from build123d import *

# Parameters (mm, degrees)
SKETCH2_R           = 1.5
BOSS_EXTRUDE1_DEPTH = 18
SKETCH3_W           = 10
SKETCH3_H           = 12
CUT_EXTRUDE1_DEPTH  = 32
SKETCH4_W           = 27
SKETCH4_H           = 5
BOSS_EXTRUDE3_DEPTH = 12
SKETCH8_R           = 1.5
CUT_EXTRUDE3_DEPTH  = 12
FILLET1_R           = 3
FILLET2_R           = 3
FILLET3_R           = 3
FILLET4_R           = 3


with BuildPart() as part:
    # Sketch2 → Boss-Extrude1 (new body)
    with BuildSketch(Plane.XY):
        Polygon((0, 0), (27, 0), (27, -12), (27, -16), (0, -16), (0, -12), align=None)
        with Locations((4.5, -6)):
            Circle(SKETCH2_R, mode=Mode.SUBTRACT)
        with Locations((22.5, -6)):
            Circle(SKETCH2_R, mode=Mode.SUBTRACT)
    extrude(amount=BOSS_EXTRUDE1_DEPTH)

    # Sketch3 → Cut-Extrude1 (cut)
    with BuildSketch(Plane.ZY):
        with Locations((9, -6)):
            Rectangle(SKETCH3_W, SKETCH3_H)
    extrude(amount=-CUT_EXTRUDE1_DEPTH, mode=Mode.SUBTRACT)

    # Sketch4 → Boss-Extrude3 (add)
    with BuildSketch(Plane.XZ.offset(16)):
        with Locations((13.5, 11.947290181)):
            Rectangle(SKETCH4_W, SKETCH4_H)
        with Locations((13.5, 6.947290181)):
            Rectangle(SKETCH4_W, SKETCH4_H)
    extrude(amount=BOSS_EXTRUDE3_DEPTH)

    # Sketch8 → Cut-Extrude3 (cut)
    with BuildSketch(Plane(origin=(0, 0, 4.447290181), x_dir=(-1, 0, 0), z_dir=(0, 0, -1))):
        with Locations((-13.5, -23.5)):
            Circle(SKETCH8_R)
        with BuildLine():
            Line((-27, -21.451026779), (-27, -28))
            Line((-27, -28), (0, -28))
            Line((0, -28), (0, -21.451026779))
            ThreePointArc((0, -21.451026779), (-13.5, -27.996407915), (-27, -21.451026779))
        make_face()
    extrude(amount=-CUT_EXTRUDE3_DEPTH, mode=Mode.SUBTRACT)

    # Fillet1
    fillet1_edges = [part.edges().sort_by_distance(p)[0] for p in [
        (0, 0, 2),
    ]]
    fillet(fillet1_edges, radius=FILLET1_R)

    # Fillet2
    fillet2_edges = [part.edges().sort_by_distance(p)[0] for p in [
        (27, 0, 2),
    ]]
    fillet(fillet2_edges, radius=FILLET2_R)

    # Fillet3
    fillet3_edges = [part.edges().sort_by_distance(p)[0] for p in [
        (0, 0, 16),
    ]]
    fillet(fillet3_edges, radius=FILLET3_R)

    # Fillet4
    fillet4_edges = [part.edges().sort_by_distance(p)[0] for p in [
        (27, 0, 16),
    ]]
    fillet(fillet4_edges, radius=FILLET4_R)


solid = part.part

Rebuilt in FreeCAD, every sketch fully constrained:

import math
import FreeCAD as App
import Part
import Sketcher
Q = App.Units.Quantity


def edges_at(feature, points):
    """Names of the edges that pass closest to the given points."""
    edges = feature.Shape.Edges
    near = lambda p: min(range(len(edges)), key=lambda i: edges[i].distToShape(Part.Vertex(*p))[0])
    return sorted({f"Edge{near(p) + 1}" for p in points})

doc = App.newDocument("Part")
params = doc.addObject("Spreadsheet::Sheet", "Params")
for row, (alias, value) in enumerate([
    ("sketch1_diameter", "3 mm"),
    ("sketch1_width", "27 mm"),
    ("sketch1_height", "16 mm"),
    ("pad1_length", "18 mm"),
    ("sketch2_width", "12 mm"),
    ("sketch2_height", "10 mm"),
    ("pocket1_length", "32 mm"),
    ("sketch3_width", "27 mm"),
    ("sketch3_height", "10 mm"),
    ("pad2_length", "12 mm"),
    ("sketch4_diameter", "3 mm"),
    ("sketch4_width", "27 mm"),
    ("pocket2_length", "12 mm"),
    ("fillet_radius", "3 mm"),
    ("fillet2_radius", "3 mm"),
    ("fillet3_radius", "3 mm"),
    ("fillet4_radius", "3 mm"),
], start=1):
    params.set(f"A{row}", alias)
    params.set(f"B{row}", "=" + value)
    params.setAlias(f"B{row}", alias)

body = doc.addObject("PartDesign::Body", "Body")

sketch1 = body.newObject("Sketcher::SketchObject", "Sketch")
sketch1.AttachmentSupport = (doc.getObject("XY_Plane"), [""])
sketch1.MapMode = "FlatFace"
sketch1.addGeometry([
    Part.LineSegment(App.Vector(27, 0, 0), App.Vector(0, 0, 0)),
    Part.LineSegment(App.Vector(0, 0, 0), App.Vector(0, -16, 0)),
    Part.LineSegment(App.Vector(0, -16, 0), App.Vector(27, -16, 0)),
    Part.LineSegment(App.Vector(27, -16, 0), App.Vector(27, 0, 0)),
    Part.Circle(App.Vector(22.5, -6, 0), App.Vector(0, 0, 1), 1.5),
    Part.Circle(App.Vector(4.5, -6, 0), App.Vector(0, 0, 1), 1.5),
], False)
sketch1.addConstraint([
    Sketcher.Constraint("Coincident", 0, 2, 1, 1),
    Sketcher.Constraint("Coincident", 1, 2, 2, 1),
    Sketcher.Constraint("Coincident", 2, 2, 3, 1),
    Sketcher.Constraint("Coincident", 3, 2, 0, 1),
    Sketcher.Constraint("Horizontal", 0),
    Sketcher.Constraint("Vertical", 1),
    Sketcher.Constraint("Horizontal", 2),
    Sketcher.Constraint("Vertical", 3),
    Sketcher.Constraint("Coincident", 0, 2, -1, 1),
    Sketcher.Constraint("Equal", 4, 5),
    Sketcher.Constraint("Horizontal", 4, 3, 5, 3),
    Sketcher.Constraint("Diameter", 4, Q("3 mm")),
    Sketcher.Constraint("DistanceX", 0, 2, 0, 1, Q("27 mm")),
    Sketcher.Constraint("DistanceY", 1, 2, 1, 1, Q("16 mm")),
    Sketcher.Constraint("DistanceY", 4, 3, -1, 1, Q("6 mm")),
    Sketcher.Constraint("DistanceX", 5, 3, 4, 3, Q("18 mm")),
    Sketcher.Constraint("DistanceX", -1, 1, 4, 3, Q("22.5 mm")),
])
sketch1.setExpression("Constraints[11]", "Params.sketch1_diameter")
sketch1.setExpression("Constraints[12]", "Params.sketch1_width")
sketch1.setExpression("Constraints[13]", "Params.sketch1_height")
pad1 = body.newObject("PartDesign::Pad", "Pad")
pad1.Profile = sketch1
pad1.setExpression("Length", "Params.pad1_length")

sketch2 = body.newObject("Sketcher::SketchObject", "Sketch001")
sketch2.AttachmentSupport = (doc.getObject("YZ_Plane"), [""])
sketch2.MapMode = "FlatFace"
sketch2.addGeometry([
    Part.LineSegment(App.Vector(0, 4, 0), App.Vector(-12, 4, 0)),
    Part.LineSegment(App.Vector(-12, 4, 0), App.Vector(-12, 14, 0)),
    Part.LineSegment(App.Vector(-12, 14, 0), App.Vector(0, 14, 0)),
    Part.LineSegment(App.Vector(0, 14, 0), App.Vector(0, 4, 0)),
], False)
sketch2.addConstraint([
    Sketcher.Constraint("Coincident", 0, 2, 1, 1),
    Sketcher.Constraint("Coincident", 1, 2, 2, 1),
    Sketcher.Constraint("Coincident", 2, 2, 3, 1),
    Sketcher.Constraint("Coincident", 3, 2, 0, 1),
    Sketcher.Constraint("Horizontal", 0),
    Sketcher.Constraint("Vertical", 1),
    Sketcher.Constraint("Horizontal", 2),
    Sketcher.Constraint("Vertical", 3),
    Sketcher.Constraint("PointOnObject", 2, 2, -2),
    Sketcher.Constraint("DistanceX", 0, 2, 0, 1, Q("12 mm")),
    Sketcher.Constraint("DistanceY", 1, 1, 1, 2, Q("10 mm")),
    Sketcher.Constraint("DistanceY", -1, 1, 0, 2, Q("4 mm")),
])
sketch2.setExpression("Constraints[9]", "Params.sketch2_width")
sketch2.setExpression("Constraints[10]", "Params.sketch2_height")
pocket1 = body.newObject("PartDesign::Pocket", "Pocket")
pocket1.Profile = sketch2
pocket1.setExpression("Length", "Params.pocket1_length")
pocket1.Reversed = True

sketch3 = body.newObject("Sketcher::SketchObject", "Sketch002")
sketch3.AttachmentSupport = (doc.getObject("XZ_Plane"), [""])
sketch3.MapMode = "FlatFace"
sketch3.AttachmentOffset = App.Placement(App.Vector(0, 0, 16), App.Rotation())
sketch3.addGeometry([
    Part.LineSegment(App.Vector(0, 14, 0), App.Vector(0, 4, 0)),
    Part.LineSegment(App.Vector(0, 4, 0), App.Vector(27, 4, 0)),
    Part.LineSegment(App.Vector(27, 4, 0), App.Vector(27, 14, 0)),
    Part.LineSegment(App.Vector(27, 14, 0), App.Vector(0, 14, 0)),
], False)
sketch3.addConstraint([
    Sketcher.Constraint("Coincident", 0, 2, 1, 1),
    Sketcher.Constraint("Coincident", 1, 2, 2, 1),
    Sketcher.Constraint("Coincident", 2, 2, 3, 1),
    Sketcher.Constraint("Coincident", 3, 2, 0, 1),
    Sketcher.Constraint("Vertical", 0),
    Sketcher.Constraint("Horizontal", 1),
    Sketcher.Constraint("Vertical", 2),
    Sketcher.Constraint("Horizontal", 3),
    Sketcher.Constraint("PointOnObject", 0, 2, -2),
    Sketcher.Constraint("DistanceX", 1, 1, 1, 2, Q("27 mm")),
    Sketcher.Constraint("DistanceY", 0, 2, 0, 1, Q("10 mm")),
    Sketcher.Constraint("DistanceY", -1, 1, 0, 2, Q("4.44729 mm")),
])
sketch3.setExpression("Constraints[9]", "Params.sketch3_width")
sketch3.setExpression("Constraints[10]", "Params.sketch3_height")
pad2 = body.newObject("PartDesign::Pad", "Pad001")
pad2.Profile = sketch3
pad2.setExpression("Length", "Params.pad2_length")

sketch4 = body.newObject("Sketcher::SketchObject", "Sketch003")
sketch4.AttachmentSupport = (doc.getObject("XY_Plane"), [""])
sketch4.MapMode = "FlatFace"
sketch4.AttachmentOffset = App.Placement(App.Vector(0, 0, 4.44729), App.Rotation())
sketch4.addGeometry([
    Part.Circle(App.Vector(13.5, -23.5, 0), App.Vector(0, 0, 1), 1.5),
    Part.LineSegment(App.Vector(27, -21.5, 0), App.Vector(27, -28, 0)),
    Part.LineSegment(App.Vector(27, -28, 0), App.Vector(0, -28, 0)),
    Part.LineSegment(App.Vector(0, -28, 0), App.Vector(0, -21.5, 0)),
    Part.ArcOfCircle(Part.Circle(App.Vector(13.5, -10.8, 0), App.Vector(0, 0, 1), 17.2), math.radians(-142), math.radians(-38)),
], False)
sketch4.addConstraint([
    Sketcher.Constraint("Coincident", 1, 2, 2, 1),
    Sketcher.Constraint("Coincident", 2, 2, 3, 1),
    Sketcher.Constraint("Coincident", 3, 2, 4, 1),
    Sketcher.Constraint("Coincident", 4, 2, 1, 1),
    Sketcher.Constraint("Vertical", 1),
    Sketcher.Constraint("Horizontal", 2),
    Sketcher.Constraint("Vertical", 3),
    Sketcher.Constraint("PointOnObject", 2, 2, -2),
    Sketcher.Constraint("Horizontal", 3, 2, 4, 2),
    Sketcher.Constraint("Vertical", 0, 3, 4, 3),
    Sketcher.Constraint("Diameter", 0, Q("3 mm")),
    Sketcher.Constraint("DistanceX", 2, 2, 2, 1, Q("27 mm")),
    Sketcher.Constraint("DistanceY", 1, 2, -1, 1, Q("28 mm")),
    Sketcher.Constraint("DistanceY", 0, 3, -1, 1, Q("23.5 mm")),
    Sketcher.Constraint("Radius", 4, Q("17.194722 mm")),
    Sketcher.Constraint("DistanceY", 1, 2, 1, 1, Q("6.548973 mm")),
])
sketch4.setExpression("Constraints[10]", "Params.sketch4_diameter")
sketch4.setExpression("Constraints[11]", "Params.sketch4_width")
pocket2 = body.newObject("PartDesign::Pocket", "Pocket001")
pocket2.Profile = sketch4
pocket2.setExpression("Length", "Params.pocket2_length")
pocket2.Reversed = True
doc.recompute()

fillet = body.newObject("PartDesign::Fillet", "Fillet")
fillet.Base = (pocket2, edges_at(pocket2, [(0, 0, 2)]))
fillet.setExpression("Radius", "Params.fillet_radius")
doc.recompute()

fillet2 = body.newObject("PartDesign::Fillet", "Fillet001")
fillet2.Base = (fillet, edges_at(fillet, [(27, 0, 2)]))
fillet2.setExpression("Radius", "Params.fillet2_radius")
doc.recompute()

fillet3 = body.newObject("PartDesign::Fillet", "Fillet002")
fillet3.Base = (fillet2, edges_at(fillet2, [(0, 0, 16)]))
fillet3.setExpression("Radius", "Params.fillet3_radius")
doc.recompute()

fillet4 = body.newObject("PartDesign::Fillet", "Fillet003")
fillet4.Base = (fillet3, edges_at(fillet3, [(27, 0, 16)]))
fillet4.setExpression("Radius", "Params.fillet4_radius")

doc.recompute()
